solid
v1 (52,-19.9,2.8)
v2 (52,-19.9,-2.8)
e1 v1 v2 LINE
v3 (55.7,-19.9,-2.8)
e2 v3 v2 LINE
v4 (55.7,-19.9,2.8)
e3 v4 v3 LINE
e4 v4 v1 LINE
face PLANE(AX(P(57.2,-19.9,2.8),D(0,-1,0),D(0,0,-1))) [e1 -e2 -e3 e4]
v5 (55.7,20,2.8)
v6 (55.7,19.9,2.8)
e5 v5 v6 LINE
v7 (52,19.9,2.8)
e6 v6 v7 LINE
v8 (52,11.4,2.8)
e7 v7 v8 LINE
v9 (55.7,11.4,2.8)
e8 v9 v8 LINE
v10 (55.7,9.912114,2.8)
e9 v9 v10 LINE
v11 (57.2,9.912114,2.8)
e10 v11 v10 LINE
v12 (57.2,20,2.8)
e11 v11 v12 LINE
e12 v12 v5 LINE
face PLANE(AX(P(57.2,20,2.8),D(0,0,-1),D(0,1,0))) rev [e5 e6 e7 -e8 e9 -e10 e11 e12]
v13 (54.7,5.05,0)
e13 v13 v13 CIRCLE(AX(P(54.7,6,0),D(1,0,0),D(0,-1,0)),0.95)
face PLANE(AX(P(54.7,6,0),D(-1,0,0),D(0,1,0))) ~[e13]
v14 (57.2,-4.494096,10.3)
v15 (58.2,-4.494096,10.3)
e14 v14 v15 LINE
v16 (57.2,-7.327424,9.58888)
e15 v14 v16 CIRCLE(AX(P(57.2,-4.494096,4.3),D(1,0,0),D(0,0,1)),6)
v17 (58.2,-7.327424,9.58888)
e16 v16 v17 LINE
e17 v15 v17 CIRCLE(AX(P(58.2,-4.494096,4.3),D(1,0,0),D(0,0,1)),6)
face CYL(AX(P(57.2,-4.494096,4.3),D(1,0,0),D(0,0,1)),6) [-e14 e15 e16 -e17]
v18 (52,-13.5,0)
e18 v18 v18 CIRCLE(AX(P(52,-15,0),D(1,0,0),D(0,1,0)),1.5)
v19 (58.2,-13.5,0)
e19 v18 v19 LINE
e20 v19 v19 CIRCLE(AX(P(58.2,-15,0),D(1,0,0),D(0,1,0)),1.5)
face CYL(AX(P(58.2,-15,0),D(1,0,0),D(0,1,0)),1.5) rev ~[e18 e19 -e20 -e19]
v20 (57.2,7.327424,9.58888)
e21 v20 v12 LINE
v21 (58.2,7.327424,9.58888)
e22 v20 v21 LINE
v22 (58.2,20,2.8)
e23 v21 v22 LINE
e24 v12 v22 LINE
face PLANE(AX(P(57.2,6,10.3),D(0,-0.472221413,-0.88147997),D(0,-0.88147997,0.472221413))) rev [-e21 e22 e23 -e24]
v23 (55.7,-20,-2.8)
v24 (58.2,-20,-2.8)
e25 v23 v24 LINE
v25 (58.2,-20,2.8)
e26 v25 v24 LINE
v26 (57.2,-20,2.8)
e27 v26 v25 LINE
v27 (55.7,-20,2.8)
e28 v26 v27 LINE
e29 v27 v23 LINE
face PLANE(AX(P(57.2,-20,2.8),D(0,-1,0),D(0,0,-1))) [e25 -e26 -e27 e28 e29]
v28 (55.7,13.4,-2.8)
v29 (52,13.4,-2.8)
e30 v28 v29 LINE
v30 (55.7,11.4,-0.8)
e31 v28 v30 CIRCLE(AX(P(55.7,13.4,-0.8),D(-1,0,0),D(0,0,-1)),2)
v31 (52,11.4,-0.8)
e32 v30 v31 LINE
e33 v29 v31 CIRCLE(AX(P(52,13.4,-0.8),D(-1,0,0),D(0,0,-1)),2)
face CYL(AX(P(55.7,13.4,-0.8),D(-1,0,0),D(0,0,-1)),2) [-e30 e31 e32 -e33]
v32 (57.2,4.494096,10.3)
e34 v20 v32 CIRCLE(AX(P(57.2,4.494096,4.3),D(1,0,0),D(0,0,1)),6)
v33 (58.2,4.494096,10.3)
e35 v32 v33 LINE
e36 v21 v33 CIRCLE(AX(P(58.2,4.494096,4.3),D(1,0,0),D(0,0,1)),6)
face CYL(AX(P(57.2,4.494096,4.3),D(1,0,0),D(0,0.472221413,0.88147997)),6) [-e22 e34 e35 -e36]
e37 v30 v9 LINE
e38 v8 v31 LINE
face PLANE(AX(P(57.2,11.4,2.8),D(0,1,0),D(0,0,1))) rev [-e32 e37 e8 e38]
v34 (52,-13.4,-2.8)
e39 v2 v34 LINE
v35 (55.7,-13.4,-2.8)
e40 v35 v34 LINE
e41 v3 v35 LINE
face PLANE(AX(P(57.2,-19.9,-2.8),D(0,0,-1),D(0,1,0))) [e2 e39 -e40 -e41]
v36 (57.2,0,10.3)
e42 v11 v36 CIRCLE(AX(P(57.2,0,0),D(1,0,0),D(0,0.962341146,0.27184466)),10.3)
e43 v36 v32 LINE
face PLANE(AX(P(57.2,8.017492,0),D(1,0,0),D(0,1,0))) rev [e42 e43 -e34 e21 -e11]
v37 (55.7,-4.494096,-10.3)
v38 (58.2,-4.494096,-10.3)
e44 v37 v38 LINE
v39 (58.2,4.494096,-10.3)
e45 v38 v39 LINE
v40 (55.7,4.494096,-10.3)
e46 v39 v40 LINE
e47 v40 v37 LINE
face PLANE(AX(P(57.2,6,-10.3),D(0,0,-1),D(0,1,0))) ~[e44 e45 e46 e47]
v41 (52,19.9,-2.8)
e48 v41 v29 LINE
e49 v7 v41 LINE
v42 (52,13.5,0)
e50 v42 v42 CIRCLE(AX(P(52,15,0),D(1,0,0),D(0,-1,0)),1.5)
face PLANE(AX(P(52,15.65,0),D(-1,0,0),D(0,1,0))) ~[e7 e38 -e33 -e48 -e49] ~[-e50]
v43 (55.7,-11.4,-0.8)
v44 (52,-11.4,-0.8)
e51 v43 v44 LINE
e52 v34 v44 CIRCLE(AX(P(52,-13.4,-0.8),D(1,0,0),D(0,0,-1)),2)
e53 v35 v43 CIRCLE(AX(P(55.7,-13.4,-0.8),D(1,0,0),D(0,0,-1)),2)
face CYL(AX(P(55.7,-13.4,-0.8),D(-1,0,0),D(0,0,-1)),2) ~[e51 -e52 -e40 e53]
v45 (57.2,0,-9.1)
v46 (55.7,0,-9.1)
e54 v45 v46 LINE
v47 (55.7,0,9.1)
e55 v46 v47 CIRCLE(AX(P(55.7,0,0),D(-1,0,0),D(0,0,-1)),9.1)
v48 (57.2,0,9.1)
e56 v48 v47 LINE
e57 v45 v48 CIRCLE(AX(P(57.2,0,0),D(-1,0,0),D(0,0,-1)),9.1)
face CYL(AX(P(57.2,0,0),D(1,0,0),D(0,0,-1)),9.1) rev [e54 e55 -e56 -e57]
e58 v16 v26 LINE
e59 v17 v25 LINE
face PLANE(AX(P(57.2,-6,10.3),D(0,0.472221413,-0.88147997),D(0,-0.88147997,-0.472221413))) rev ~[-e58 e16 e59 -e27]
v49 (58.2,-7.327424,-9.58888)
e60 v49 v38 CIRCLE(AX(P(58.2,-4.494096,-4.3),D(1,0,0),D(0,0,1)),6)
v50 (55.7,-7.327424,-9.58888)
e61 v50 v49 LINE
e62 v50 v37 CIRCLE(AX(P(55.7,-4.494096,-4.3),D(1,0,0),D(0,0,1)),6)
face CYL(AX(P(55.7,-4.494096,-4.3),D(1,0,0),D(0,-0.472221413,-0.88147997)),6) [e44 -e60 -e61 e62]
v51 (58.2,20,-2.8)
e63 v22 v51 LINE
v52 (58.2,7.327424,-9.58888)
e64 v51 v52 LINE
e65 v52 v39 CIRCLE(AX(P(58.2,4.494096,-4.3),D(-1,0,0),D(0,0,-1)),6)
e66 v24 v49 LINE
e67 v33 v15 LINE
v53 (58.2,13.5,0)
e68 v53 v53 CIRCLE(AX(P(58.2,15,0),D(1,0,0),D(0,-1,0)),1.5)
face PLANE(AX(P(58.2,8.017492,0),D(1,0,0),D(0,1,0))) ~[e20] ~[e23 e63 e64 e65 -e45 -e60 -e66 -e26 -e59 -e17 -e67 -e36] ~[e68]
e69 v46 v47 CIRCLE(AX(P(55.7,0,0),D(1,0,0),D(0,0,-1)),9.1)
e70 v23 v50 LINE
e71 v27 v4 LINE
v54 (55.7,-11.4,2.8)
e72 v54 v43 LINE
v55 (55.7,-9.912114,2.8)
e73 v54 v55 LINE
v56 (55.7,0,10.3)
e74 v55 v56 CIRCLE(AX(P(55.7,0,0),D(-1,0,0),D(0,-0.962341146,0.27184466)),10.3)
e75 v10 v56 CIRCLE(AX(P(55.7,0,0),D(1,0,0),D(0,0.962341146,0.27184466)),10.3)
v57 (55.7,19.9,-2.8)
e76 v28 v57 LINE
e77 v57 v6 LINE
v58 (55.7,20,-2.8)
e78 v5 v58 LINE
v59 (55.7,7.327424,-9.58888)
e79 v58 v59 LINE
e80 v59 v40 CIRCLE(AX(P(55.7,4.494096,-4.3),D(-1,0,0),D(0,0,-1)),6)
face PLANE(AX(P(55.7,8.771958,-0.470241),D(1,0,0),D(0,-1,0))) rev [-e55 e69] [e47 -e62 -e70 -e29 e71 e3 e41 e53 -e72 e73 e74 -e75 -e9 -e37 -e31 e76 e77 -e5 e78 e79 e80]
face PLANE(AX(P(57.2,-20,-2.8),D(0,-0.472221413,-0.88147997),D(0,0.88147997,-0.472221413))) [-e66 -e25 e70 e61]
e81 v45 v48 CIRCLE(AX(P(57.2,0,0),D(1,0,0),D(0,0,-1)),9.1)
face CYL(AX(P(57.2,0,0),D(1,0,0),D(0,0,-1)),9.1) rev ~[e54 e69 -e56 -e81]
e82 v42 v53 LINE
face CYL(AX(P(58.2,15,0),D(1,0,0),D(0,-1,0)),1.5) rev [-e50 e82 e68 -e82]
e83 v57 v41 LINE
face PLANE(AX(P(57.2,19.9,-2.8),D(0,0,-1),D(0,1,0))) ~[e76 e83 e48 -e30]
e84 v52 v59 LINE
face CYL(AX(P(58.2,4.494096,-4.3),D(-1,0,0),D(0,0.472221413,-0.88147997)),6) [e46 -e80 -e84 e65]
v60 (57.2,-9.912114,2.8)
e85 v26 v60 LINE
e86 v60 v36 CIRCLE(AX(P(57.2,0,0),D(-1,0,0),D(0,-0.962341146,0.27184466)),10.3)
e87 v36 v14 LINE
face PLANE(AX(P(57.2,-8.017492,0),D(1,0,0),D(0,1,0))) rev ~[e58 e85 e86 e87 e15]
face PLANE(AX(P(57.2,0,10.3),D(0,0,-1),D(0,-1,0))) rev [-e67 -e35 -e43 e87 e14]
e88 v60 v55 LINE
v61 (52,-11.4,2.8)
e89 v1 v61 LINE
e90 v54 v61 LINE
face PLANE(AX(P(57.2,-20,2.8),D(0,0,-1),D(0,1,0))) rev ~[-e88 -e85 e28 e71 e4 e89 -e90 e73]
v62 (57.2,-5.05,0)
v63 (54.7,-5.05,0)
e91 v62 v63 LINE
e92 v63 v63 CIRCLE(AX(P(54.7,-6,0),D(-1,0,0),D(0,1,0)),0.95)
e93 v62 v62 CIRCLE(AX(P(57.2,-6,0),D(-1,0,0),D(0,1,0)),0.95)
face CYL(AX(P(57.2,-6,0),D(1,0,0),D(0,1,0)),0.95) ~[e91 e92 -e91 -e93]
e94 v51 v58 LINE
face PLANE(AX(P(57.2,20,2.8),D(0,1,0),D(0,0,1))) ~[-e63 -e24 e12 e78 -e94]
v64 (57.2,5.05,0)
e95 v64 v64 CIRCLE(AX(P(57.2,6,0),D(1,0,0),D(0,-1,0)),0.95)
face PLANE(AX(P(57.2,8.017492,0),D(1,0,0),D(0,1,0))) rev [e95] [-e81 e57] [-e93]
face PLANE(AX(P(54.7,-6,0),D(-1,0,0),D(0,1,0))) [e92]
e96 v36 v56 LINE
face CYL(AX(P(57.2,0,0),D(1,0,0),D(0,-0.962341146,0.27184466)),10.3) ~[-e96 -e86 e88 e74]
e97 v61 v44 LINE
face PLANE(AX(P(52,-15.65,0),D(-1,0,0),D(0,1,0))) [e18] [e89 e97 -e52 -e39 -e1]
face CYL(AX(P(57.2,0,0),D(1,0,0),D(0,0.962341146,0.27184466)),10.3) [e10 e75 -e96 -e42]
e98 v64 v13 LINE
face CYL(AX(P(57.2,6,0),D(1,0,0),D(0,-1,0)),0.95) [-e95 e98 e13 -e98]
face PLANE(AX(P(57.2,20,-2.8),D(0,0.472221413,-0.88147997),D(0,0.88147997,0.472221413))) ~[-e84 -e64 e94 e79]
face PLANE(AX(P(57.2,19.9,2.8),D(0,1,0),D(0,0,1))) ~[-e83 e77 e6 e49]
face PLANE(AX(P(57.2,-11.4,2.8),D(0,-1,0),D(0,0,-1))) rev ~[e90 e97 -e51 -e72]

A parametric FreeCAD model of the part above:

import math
import FreeCAD as App
import Part
import Sketcher
from FreeCAD import Vector
Q = App.Units.Quantity


def edges_at(feature, points):
    """Names of the edges that pass closest to the given points."""
    edges = feature.Shape.Edges
    near = lambda p: min(range(len(edges)), key=lambda i: edges[i].distToShape(Part.Vertex(*p))[0])
    return sorted({f"Edge{near(p) + 1}" for p in points})

doc = App.newDocument("Part")
body = doc.addObject("PartDesign::Body", "Body")

# Sketch on YZ plane
sketch1 = doc.addObject("Sketcher::SketchObject", "Sketch")
body.addObject(sketch1)
sketch1.AttachmentSupport = (doc.YZ_Plane, [""])
sketch1.MapMode = "FlatFace"
sketch1.AttachmentOffset = App.Placement(Vector(0, 0, 57.2), App.Rotation())
sketch1.addGeometry(Part.LineSegment(Vector(-20, 2.8, 0), Vector(-20, -2.8, 0)), False)
sketch1.addGeometry(Part.LineSegment(Vector(-20, -2.8, 0), Vector(-6, -10.3, 0)), False)
sketch1.addGeometry(Part.LineSegment(Vector(-6, -10.3, 0), Vector(0, -10.3, 0)), False)
sketch1.addGeometry(Part.LineSegment(Vector(0, -10.3, 0), Vector(0, 10.3, 0)), False)
sketch1.addGeometry(Part.LineSegment(Vector(0, 10.3, 0), Vector(-6, 10.3, 0)), False)
sketch1.addGeometry(Part.LineSegment(Vector(-6, 10.3, 0), Vector(-20, 2.8, 0)), False)
sketch1.addConstraint(Sketcher.Constraint("Coincident", 0, 2, 1, 1))
sketch1.addConstraint(Sketcher.Constraint("Coincident", 1, 2, 2, 1))
sketch1.addConstraint(Sketcher.Constraint("Coincident", 2, 2, 3, 1))
sketch1.addConstraint(Sketcher.Constraint("Coincident", 3, 2, 4, 1))
sketch1.addConstraint(Sketcher.Constraint("Coincident", 4, 2, 5, 1))
sketch1.addConstraint(Sketcher.Constraint("Coincident", 5, 2, 0, 1))
sketch1.addConstraint(Sketcher.Constraint("Vertical", 0))
sketch1.addConstraint(Sketcher.Constraint("Horizontal", 2))
sketch1.addConstraint(Sketcher.Constraint("Vertical", 3))
sketch1.addConstraint(Sketcher.Constraint("Horizontal", 4))
sketch1.addConstraint(Sketcher.Constraint("Symmetric", 2, 2, 3, 2, -1, 1))
sketch1.addConstraint(Sketcher.Constraint("Vertical", 1, 2, 4, 2))
sketch1.addConstraint(Sketcher.Constraint("Equal", 1, 5))
sketch1.addConstraint(Sketcher.Constraint("DistanceX", 2, 1, 2, 2, Q("6 mm")))
sketch1.addConstraint(Sketcher.Constraint("DistanceY", 0, 2, 0, 1, Q("5.6 mm")))
sketch1.addConstraint(Sketcher.Constraint("DistanceY", 3, 1, 3, 2, Q("20.6 mm")))
sketch1.addConstraint(Sketcher.Constraint("DistanceX", 0, 2, -1, 1, Q("20 mm")))
pad1 = doc.addObject("PartDesign::Pad", "Pad")
body.addObject(pad1)
pad1.Profile = sketch1
pad1.Length = 1

# Sketch on YZ plane
sketch2 = doc.addObject("Sketcher::SketchObject", "Sketch001")
body.addObject(sketch2)
sketch2.AttachmentSupport = (doc.YZ_Plane, [""])
sketch2.MapMode = "FlatFace"
sketch2.AttachmentOffset = App.Placement(Vector(0, 0, 57.2), App.Rotation())
sketch2.addGeometry(Part.Circle(Vector(-6, 0, 0), Vector(0, 0, 1), 0.95), False)
sketch2.addConstraint(Sketcher.Constraint("PointOnObject", 0, 3, -1))
sketch2.addConstraint(Sketcher.Constraint("Diameter", 0, Q("1.9 mm")))
sketch2.addConstraint(Sketcher.Constraint("DistanceX", 0, 3, -1, 1, Q("6 mm")))
pad2 = doc.addObject("PartDesign::Pad", "Pad001")
body.addObject(pad2)
pad2.Profile = sketch2
pad2.Length = 2.5
pad2.Reversed = True

# Sketch on YZ plane
sketch3 = doc.addObject("Sketcher::SketchObject", "Sketch002")
body.addObject(sketch3)
sketch3.AttachmentSupport = (doc.YZ_Plane, [""])
sketch3.MapMode = "FlatFace"
sketch3.AttachmentOffset = App.Placement(Vector(0, 0, 57.2), App.Rotation())
sketch3.addGeometry(Part.LineSegment(Vector(-20, -2.8, 0), Vector(-20, 2.8, 0)), False)
sketch3.addGeometry(Part.LineSegment(Vector(-20, 2.8, 0), Vector(-9.912114, 2.8, 0)), False)
sketch3.addGeometry(Part.ArcOfCircle(Part.Circle(Vector(0, 0, 0), Vector(0, 0, 1), 10.3), math.radians(90), math.radians(164.225936)), False)
sketch3.addGeometry(Part.LineSegment(Vector(0, 10.3, 0), Vector(0, 9.1, 0)), False)
sketch3.addGeometry(Part.ArcOfCircle(Part.Circle(Vector(0, 0, 0), Vector(0, 0, 1), 9.1), math.radians(90), math.radians(270)), False)
sketch3.addGeometry(Part.LineSegment(Vector(0, -9.1, 0), Vector(0, -10.3, 0)), False)
sketch3.addGeometry(Part.LineSegment(Vector(0, -10.3, 0), Vector(-6, -10.3, 0)), False)
sketch3.addGeometry(Part.LineSegment(Vector(-6, -10.3, 0), Vector(-20, -2.8, 0)), False)
sketch3.addConstraint(Sketcher.Constraint("Coincident", 0, 2, 1, 1))
sketch3.addConstraint(Sketcher.Constraint("Coincident", 1, 2, 2, 2))
sketch3.addConstraint(Sketcher.Constraint("Coincident", 2, 1, 3, 1))
sketch3.addConstraint(Sketcher.Constraint("Coincident", 3, 2, 4, 1))
sketch3.addConstraint(Sketcher.Constraint("Coincident", 4, 2, 5, 1))
sketch3.addConstraint(Sketcher.Constraint("Coincident", 5, 2, 6, 1))
sketch3.addConstraint(Sketcher.Constraint("Coincident", 6, 2, 7, 1))
sketch3.addConstraint(Sketcher.Constraint("Coincident", 7, 2, 0, 1))
sketch3.addConstraint(Sketcher.Constraint("Vertical", 0))
sketch3.addConstraint(Sketcher.Constraint("Horizontal", 1))
sketch3.addConstraint(Sketcher.Constraint("Vertical", 3))
sketch3.addConstraint(Sketcher.Constraint("Vertical", 5))
sketch3.addConstraint(Sketcher.Constraint("Horizontal", 6))
sketch3.addConstraint(Sketcher.Constraint("Coincident", 2, 3, -1, 1))
sketch3.addConstraint(Sketcher.Constraint("Coincident", 4, 3, -1, 1))
sketch3.addConstraint(Sketcher.Constraint("Symmetric", 2, 1, 5, 2, -1, 1))
sketch3.addConstraint(Sketcher.Constraint("PointOnObject", 2, 1, -2))
sketch3.addConstraint(Sketcher.Constraint("Radius", 2, Q("10.3 mm")))
sketch3.addConstraint(Sketcher.Constraint("Radius", 4, Q("9.1 mm")))
sketch3.addConstraint(Sketcher.Constraint("DistanceX", 6, 2, 6, 1, Q("6 mm")))
sketch3.addConstraint(Sketcher.Constraint("DistanceY", 0, 1, 0, 2, Q("5.6 mm")))
sketch3.addConstraint(Sketcher.Constraint("DistanceX", 0, 2, -1, 1, Q("20 mm")))
sketch3.addConstraint(Sketcher.Constraint("DistanceY", -1, 1, 0, 2, Q("2.8 mm")))
pad3 = doc.addObject("PartDesign::Pad", "Pad002")
body.addObject(pad3)
pad3.Profile = sketch3
pad3.Length = 1.5
pad3.Reversed = True

# Sketch on YZ plane
sketch4 = doc.addObject("Sketcher::SketchObject", "Sketch003")
body.addObject(sketch4)
sketch4.AttachmentSupport = (doc.YZ_Plane, [""])
sketch4.MapMode = "FlatFace"
sketch4.AttachmentOffset = App.Placement(Vector(0, 0, 57.2), App.Rotation())
sketch4.addGeometry(Part.LineSegment(Vector(-19.9, -2.8, 0), Vector(-19.9, 2.8, 0)), False)
sketch4.addGeometry(Part.LineSegment(Vector(-19.9, 2.8, 0), Vector(-11.4, 2.8, 0)), False)
sketch4.addGeometry(Part.LineSegment(Vector(-11.4, 2.8, 0), Vector(-11.4, -2.8, 0)), False)
sketch4.addGeometry(Part.LineSegment(Vector(-11.4, -2.8, 0), Vector(-19.9, -2.8, 0)), False)
sketch4.addConstraint(Sketcher.Constraint("Coincident", 0, 2, 1, 1))
sketch4.addConstraint(Sketcher.Constraint("Coincident", 1, 2, 2, 1))
sketch4.addConstraint(Sketcher.Constraint("Coincident", 2, 2, 3, 1))
sketch4.addConstraint(Sketcher.Constraint("Coincident", 3, 2, 0, 1))
sketch4.addConstraint(Sketcher.Constraint("Vertical", 0))
sketch4.addConstraint(Sketcher.Constraint("Horizontal", 1))
sketch4.addConstraint(Sketcher.Constraint("Vertical", 2))
sketch4.addConstraint(Sketcher.Constraint("Horizontal", 3))
sketch4.addConstraint(Sketcher.Constraint("DistanceX", 1, 1, 1, 2, Q("8.5 mm")))
sketch4.addConstraint(Sketcher.Constraint("DistanceY", 0, 1, 0, 2, Q("5.6 mm")))
sketch4.addConstraint(Sketcher.Constraint("DistanceX", 0, 2, -1, 1, Q("19.9 mm")))
sketch4.addConstraint(Sketcher.Constraint("DistanceY", -1, 1, 0, 2, Q("2.8 mm")))
pad4 = doc.addObject("PartDesign::Pad", "Pad003")
body.addObject(pad4)
pad4.Profile = sketch4
pad4.Length = 5.2
pad4.Reversed = True

# Sketch on YZ plane
sketch5 = doc.addObject("Sketcher::SketchObject", "Sketch004")
body.addObject(sketch5)
sketch5.AttachmentSupport = (doc.YZ_Plane, [""])
sketch5.MapMode = "FlatFace"
sketch5.AttachmentOffset = App.Placement(Vector(0, 0, 58.2), App.Rotation())
sketch5.addGeometry(Part.Circle(Vector(-15, 0, 0), Vector(0, 0, 1), 1.5), False)
sketch5.addConstraint(Sketcher.Constraint("PointOnObject", 0, 3, -1))
sketch5.addConstraint(Sketcher.Constraint("Diameter", 0, Q("3 mm")))
sketch5.addConstraint(Sketcher.Constraint("DistanceX", 0, 3, -1, 1, Q("15 mm")))
pocket1 = doc.addObject("PartDesign::Pocket", "Pocket")
body.addObject(pocket1)
pocket1.Profile = sketch5
pocket1.Length = 30
pocket1.Midplane = True
doc.recompute()

mirrored = doc.addObject("PartDesign::Mirrored", "Mirrored")
body.addObject(mirrored)
mirrored.Originals = [pad1, pad2, pad3, pad4, pocket1]
mirrored.MirrorPlane = (doc.XZ_Plane, [""])
body.Tip = mirrored
doc.recompute()

fillet = doc.addObject("PartDesign::Fillet", "Fillet")
body.addObject(fillet)
fillet.Base = (mirrored, edges_at(mirrored, [
    (56.95, -6, -10.3),
    (56.95, -6, -10.3),
    (56.95, 6, -10.3),
    (56.95, 6, -10.3),
    (57.7, -6, 10.3),
    (57.7, 6, 10.3),
]))
fillet.Radius = 6
doc.recompute()

fillet2 = doc.addObject("PartDesign::Fillet", "Fillet001")
body.addObject(fillet2)
fillet2.Base = (fillet, edges_at(fillet, [(53.85, 11.4, -2.8), (53.85, -11.4, -2.8)]))
fillet2.Radius = 2

doc.recompute()
